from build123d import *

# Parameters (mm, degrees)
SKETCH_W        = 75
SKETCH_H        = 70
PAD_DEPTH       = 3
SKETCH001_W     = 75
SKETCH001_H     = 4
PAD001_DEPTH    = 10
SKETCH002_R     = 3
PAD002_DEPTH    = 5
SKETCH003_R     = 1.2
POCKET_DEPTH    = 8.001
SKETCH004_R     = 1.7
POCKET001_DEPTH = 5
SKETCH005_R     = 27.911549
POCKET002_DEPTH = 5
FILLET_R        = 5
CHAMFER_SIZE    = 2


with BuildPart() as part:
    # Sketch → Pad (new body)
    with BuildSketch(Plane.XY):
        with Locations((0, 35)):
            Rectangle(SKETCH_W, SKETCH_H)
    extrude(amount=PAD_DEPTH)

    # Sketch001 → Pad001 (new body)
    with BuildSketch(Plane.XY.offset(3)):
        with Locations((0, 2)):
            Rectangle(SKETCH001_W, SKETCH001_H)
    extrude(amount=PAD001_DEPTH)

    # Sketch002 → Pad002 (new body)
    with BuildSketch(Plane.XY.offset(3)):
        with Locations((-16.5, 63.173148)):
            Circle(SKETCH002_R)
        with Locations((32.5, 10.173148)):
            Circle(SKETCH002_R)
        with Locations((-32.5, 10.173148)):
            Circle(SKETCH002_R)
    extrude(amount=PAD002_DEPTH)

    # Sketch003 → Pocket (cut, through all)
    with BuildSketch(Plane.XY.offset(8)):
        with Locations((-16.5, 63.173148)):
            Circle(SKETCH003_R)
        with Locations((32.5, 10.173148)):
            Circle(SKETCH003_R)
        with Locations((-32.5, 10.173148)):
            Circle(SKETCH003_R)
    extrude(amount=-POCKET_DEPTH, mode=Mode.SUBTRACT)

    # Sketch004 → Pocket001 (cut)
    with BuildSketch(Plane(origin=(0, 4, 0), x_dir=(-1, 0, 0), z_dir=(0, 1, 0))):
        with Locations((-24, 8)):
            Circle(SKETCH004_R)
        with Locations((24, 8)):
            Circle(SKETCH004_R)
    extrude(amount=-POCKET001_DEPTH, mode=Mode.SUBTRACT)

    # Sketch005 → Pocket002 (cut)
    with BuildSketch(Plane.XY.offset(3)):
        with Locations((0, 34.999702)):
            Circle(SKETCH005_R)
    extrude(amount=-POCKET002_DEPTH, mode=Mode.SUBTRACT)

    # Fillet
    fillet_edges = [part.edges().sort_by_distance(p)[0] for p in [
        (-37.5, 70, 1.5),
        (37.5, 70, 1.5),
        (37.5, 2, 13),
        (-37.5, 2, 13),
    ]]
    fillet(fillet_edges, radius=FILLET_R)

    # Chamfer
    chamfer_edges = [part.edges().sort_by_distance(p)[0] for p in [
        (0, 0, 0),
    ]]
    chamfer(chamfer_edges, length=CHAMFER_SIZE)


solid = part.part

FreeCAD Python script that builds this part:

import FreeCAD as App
import Part
import Sketcher
from FreeCAD import Vector


def edges_at(feature, points):
    """Names of the edges that pass closest to the given points."""
    edges = feature.Shape.Edges
    near = lambda p: min(range(len(edges)), key=lambda i: edges[i].distToShape(Part.Vertex(*p))[0])
    return sorted({f"Edge{near(p) + 1}" for p in points})


def add_polygon(sketch, points):
    """Adds a closed chain of lines whose ends are joined by coincident constraints."""
    first, n = sketch.GeometryCount, len(points)
    for a, b in zip(points, points[1:] + points[:1]):
        sketch.addGeometry(Part.LineSegment(App.Vector(*a, 0), App.Vector(*b, 0)), False)
    for i in range(n):
        sketch.addConstraint(Sketcher.Constraint("Coincident", first + i, 2, first + (i + 1) % n, 1))

doc = App.newDocument("Part")
body = doc.addObject("PartDesign::Body", "Body")

sketch1 = doc.addObject("Sketcher::SketchObject", "Sketch")
body.addObject(sketch1)
sketch1.AttachmentSupport = (doc.XY_Plane, [""])
sketch1.MapMode = "FlatFace"
add_polygon(sketch1, [(-38, 70), (-38, 0), (38, 0), (38, 70)])
sketch1.addConstraint([
    Sketcher.Constraint("Vertical", 0),
    Sketcher.Constraint("Horizontal", 1),
    Sketcher.Constraint("Vertical", 2),
    Sketcher.Constraint("Horizontal", 3),
    Sketcher.Constraint("Symmetric", 0, 2, 1, 2, -1, 1),
    Sketcher.Constraint("DistanceX", 1, 1, 1, 2, 75.0),
    Sketcher.Constraint("DistanceY", 0, 2, 0, 1, 70.0),
])
pad1 = doc.addObject("PartDesign::Pad", "Pad")
body.addObject(pad1)
pad1.Profile = sketch1
pad1.Length = 3

sketch2 = doc.addObject("Sketcher::SketchObject", "Sketch001")
body.addObject(sketch2)
sketch2.AttachmentSupport = (doc.XY_Plane, [""])
sketch2.MapMode = "FlatFace"
sketch2.AttachmentOffset = App.Placement(Vector(0, 0, 3), App.Rotation())
add_polygon(sketch2, [(-37.5, 4), (-37.5, 0), (37.5, 0), (37.5, 4)])
sketch2.addConstraint([
    Sketcher.Constraint("Vertical", 0),
    Sketcher.Constraint("Horizontal", 1),
    Sketcher.Constraint("Vertical", 2),
    Sketcher.Constraint("Horizontal", 3),
    Sketcher.Constraint("Symmetric", 0, 2, 1, 2, -1, 1),
    Sketcher.Constraint("DistanceX", 1, 1, 1, 2, 75.0),
    Sketcher.Constraint("DistanceY", 0, 2, 0, 1, 4.0),
])
pad2 = doc.addObject("PartDesign::Pad", "Pad001")
body.addObject(pad2)
pad2.Profile = sketch2
pad2.Length = 10

sketch3 = doc.addObject("Sketcher::SketchObject", "Sketch002")
body.addObject(sketch3)
sketch3.AttachmentSupport = (doc.XY_Plane, [""])
sketch3.MapMode = "FlatFace"
sketch3.AttachmentOffset = App.Placement(Vector(0, 0, 3), App.Rotation())
sketch3.addGeometry([
    Part.Circle(Vector(-16.5, 63.2, 0), Vector(0, 0, 1), 3),
    Part.Circle(Vector(32.5, 10.2, 0), Vector(0, 0, 1), 3),
    Part.Circle(Vector(-32.5, 10.2, 0), Vector(0, 0, 1), 3),
], False)
sketch3.addConstraint([
    Sketcher.Constraint("Equal", 0, 1),
    Sketcher.Constraint("Equal", 1, 2),
    Sketcher.Constraint("Symmetric", 1, 3, 2, 3, -2),
    Sketcher.Constraint("Diameter", 0, 6.0),
    Sketcher.Constraint("DistanceX", 0, 3, 1, 3, 49.0),
    Sketcher.Constraint("DistanceY", 1, 3, 0, 3, 53.0),
    Sketcher.Constraint("DistanceX", 2, 3, 0, 3, 16.0),
    Sketcher.Constraint("DistanceY", -1, 1, 0, 3, 63.173148),
])
pad3 = doc.addObject("PartDesign::Pad", "Pad002")
body.addObject(pad3)
pad3.Profile = sketch3
pad3.Length = 5

sketch4 = doc.addObject("Sketcher::SketchObject", "Sketch003")
body.addObject(sketch4)
sketch4.AttachmentSupport = (doc.XY_Plane, [""])
sketch4.MapMode = "FlatFace"
sketch4.AttachmentOffset = App.Placement(Vector(0, 0, 8), App.Rotation())
sketch4.addGeometry([
    Part.Circle(Vector(-16.5, 63.2, 0), Vector(0, 0, 1), 1.2),
    Part.Circle(Vector(32.5, 10.2, 0), Vector(0, 0, 1), 1.2),
    Part.Circle(Vector(-32.5, 10.2, 0), Vector(0, 0, 1), 1.2),
], False)
sketch4.addConstraint([
    Sketcher.Constraint("Equal", 0, 1),
    Sketcher.Constraint("Equal", 1, 2),
    Sketcher.Constraint("Symmetric", 1, 3, 2, 3, -2),
    Sketcher.Constraint("Diameter", 0, 2.4),
    Sketcher.Constraint("DistanceX", 0, 3, 1, 3, 49.0),
    Sketcher.Constraint("DistanceY", 1, 3, 0, 3, 53.0),
    Sketcher.Constraint("DistanceX", 2, 3, 0, 3, 16.0),
    Sketcher.Constraint("DistanceY", -1, 1, 0, 3, 63.173148),
])
pocket1 = doc.addObject("PartDesign::Pocket", "Pocket")
body.addObject(pocket1)
pocket1.Profile = sketch4
pocket1.Type = "ThroughAll"

sketch5 = doc.addObject("Sketcher::SketchObject", "Sketch004")
body.addObject(sketch5)
sketch5.AttachmentSupport = (doc.XZ_Plane, [""])
sketch5.MapMode = "FlatFace"
sketch5.AttachmentOffset = App.Placement(Vector(0, 0, -4), App.Rotation())
sketch5.addGeometry([
    Part.Circle(Vector(24, 8, 0), Vector(0, 0, 1), 1.7),
    Part.Circle(Vector(-24, 8, 0), Vector(0, 0, 1), 1.7),
], False)
sketch5.addConstraint([
    Sketcher.Constraint("Equal", 0, 1),
    Sketcher.Constraint("Symmetric", 0, 3, 1, 3, -2),
    Sketcher.Constraint("Diameter", 0, 3.4),
    Sketcher.Constraint("DistanceX", -1, 1, 0, 3, 24.0),
    Sketcher.Constraint("DistanceY", -1, 1, 0, 3, 8.0),
])
pocket2 = doc.addObject("PartDesign::Pocket", "Pocket001")
body.addObject(pocket2)
pocket2.Profile = sketch5
pocket2.Length = 5
pocket2.Reversed = True

sketch6 = doc.addObject("Sketcher::SketchObject", "Sketch005")
body.addObject(sketch6)
sketch6.AttachmentSupport = (doc.XY_Plane, [""])
sketch6.MapMode = "FlatFace"
sketch6.AttachmentOffset = App.Placement(Vector(0, 0, 3), App.Rotation())
sketch6.addGeometry(Part.Circle(Vector(0, 35, 0), Vector(0, 0, 1), 28), False)
sketch6.addConstraint([
    Sketcher.Constraint("PointOnObject", 0, 3, -2),
    Sketcher.Constraint("Diameter", 0, 55.823098),
    Sketcher.Constraint("DistanceY", -1, 1, 0, 3, 34.999702),
])
pocket3 = doc.addObject("PartDesign::Pocket", "Pocket002")
body.addObject(pocket3)
pocket3.Profile = sketch6
pocket3.Length = 5
doc.recompute()

fillet = doc.addObject("PartDesign::Fillet", "Fillet")
body.addObject(fillet)
fillet.Base = (pocket3, edges_at(pocket3, [
    (-37.5, 70, 1.5),
    (37.5, 70, 1.5),
    (37.5, 2, 13),
    (-37.5, 2, 13),
]))
fillet.Radius = 5
doc.recompute()

chamfer = doc.addObject("PartDesign::Chamfer", "Chamfer")
body.addObject(chamfer)
chamfer.Base = (fillet, edges_at(fillet, [(0, 0, 0)]))
chamfer.Size = 2

doc.recompute()
